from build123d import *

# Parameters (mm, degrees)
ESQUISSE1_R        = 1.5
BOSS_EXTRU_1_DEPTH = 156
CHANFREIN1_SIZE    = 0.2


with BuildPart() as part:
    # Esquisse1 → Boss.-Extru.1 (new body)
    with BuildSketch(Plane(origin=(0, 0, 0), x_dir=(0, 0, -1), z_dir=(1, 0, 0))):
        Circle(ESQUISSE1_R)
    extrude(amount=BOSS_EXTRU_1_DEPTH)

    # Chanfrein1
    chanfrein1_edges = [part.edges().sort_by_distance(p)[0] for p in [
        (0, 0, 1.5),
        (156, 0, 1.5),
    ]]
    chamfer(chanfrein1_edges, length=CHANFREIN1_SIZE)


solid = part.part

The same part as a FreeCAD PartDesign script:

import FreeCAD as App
import Part
import Sketcher
Q = App.Units.Quantity


def edges_at(feature, points):
    """Names of the edges that pass closest to the given points."""
    edges = feature.Shape.Edges
    near = lambda p: min(range(len(edges)), key=lambda i: edges[i].distToShape(Part.Vertex(*p))[0])
    return sorted({f"Edge{near(p) + 1}" for p in points})

doc = App.newDocument("Part")
body = doc.addObject("PartDesign::Body", "Body")

# Sketch on YZ plane
sketch1 = body.newObject("Sketcher::SketchObject", "Sketch")
sketch1.AttachmentSupport = (doc.getObject("YZ_Plane"), [""])
sketch1.MapMode = "FlatFace"
sketch1.addGeometry(Part.Circle(App.Vector(0, 0, 0), App.Vector(0, 0, 1), 1.5), False)
sketch1.addConstraint(Sketcher.Constraint("Coincident", 0, 3, -1, 1))
sketch1.addConstraint(Sketcher.Constraint("Diameter", 0, Q("3 mm")))
pad1 = body.newObject("PartDesign::Pad", "Pad")
pad1.Profile = sketch1
pad1.Length = 156
doc.recompute()

chamfer = body.newObject("PartDesign::Chamfer", "Chamfer")
chamfer.Base = (pad1, edges_at(pad1, [(0, 0, 1.5), (156, 0, 1.5)]))
chamfer.Size = 0.2

doc.recompute()
